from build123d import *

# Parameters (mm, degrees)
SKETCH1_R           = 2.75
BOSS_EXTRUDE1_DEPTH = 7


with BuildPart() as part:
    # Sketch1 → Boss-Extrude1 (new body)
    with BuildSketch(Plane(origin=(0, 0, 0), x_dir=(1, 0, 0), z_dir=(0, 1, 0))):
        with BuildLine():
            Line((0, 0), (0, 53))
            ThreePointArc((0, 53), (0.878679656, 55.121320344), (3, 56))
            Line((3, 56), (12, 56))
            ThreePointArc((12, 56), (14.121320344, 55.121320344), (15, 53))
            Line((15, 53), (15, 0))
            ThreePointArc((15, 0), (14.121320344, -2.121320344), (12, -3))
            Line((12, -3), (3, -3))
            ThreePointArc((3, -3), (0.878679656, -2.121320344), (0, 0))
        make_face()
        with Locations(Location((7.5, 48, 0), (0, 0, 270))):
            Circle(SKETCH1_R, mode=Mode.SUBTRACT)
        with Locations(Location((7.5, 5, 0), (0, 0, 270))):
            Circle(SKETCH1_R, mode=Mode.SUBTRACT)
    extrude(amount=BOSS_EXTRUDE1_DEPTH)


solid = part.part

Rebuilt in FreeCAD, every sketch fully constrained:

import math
import FreeCAD as App
import Part
import Sketcher
from FreeCAD import Vector

doc = App.newDocument("Part")
body = doc.addObject("PartDesign::Body", "Body")

# Sketch on XZ plane
sketch1 = body.newObject("Sketcher::SketchObject", "Sketch")
sketch1.AttachmentSupport = (doc.getObject("XZ_Plane"), [""])
sketch1.MapMode = "FlatFace"
sketch1.addGeometry([
    Part.LineSegment(Vector(0, -53, 0), Vector(0, 0, 0)),  # 0
    Part.ArcOfCircle(Part.Circle(Vector(3, 0, 0), Vector(0, 0, 1), 3), math.radians(90), math.radians(180)),  # 1
    Part.LineSegment(Vector(3, 3, 0), Vector(12, 3, 0)),  # 2
    Part.ArcOfCircle(Part.Circle(Vector(12, 0, 0), Vector(0, 0, 1), 3), math.radians(0), math.radians(90)),  # 3
    Part.LineSegment(Vector(15, 0, 0), Vector(15, -53, 0)),  # 4
    Part.ArcOfCircle(Part.Circle(Vector(12, -53, 0), Vector(0, 0, 1), 3), math.radians(-90), math.radians(0)),  # 5
    Part.LineSegment(Vector(12, -56, 0), Vector(3, -56, 0)),  # 6
    Part.ArcOfCircle(Part.Circle(Vector(3, -53, 0), Vector(0, 0, 1), 3), math.radians(180), math.radians(270)),  # 7
    Part.Circle(Vector(7.5, -5, 0), Vector(0, 0, 1), 2.75),  # 8
    Part.Circle(Vector(7.5, -48, 0), Vector(0, 0, 1), 2.75),  # 9
], False)
sketch1.addConstraint([
    Sketcher.Constraint("Tangent", 0, 2, 1, 2),
    Sketcher.Constraint("Tangent", 1, 1, 2, 1),
    Sketcher.Constraint("Tangent", 2, 2, 3, 2),
    Sketcher.Constraint("Tangent", 3, 1, 4, 1),
    Sketcher.Constraint("Tangent", 4, 2, 5, 2),
    Sketcher.Constraint("Tangent", 5, 1, 6, 1),
    Sketcher.Constraint("Tangent", 6, 2, 7, 2),
    Sketcher.Constraint("Tangent", 7, 1, 0, 1),
    Sketcher.Constraint("Vertical", 0),
    Sketcher.Constraint("Horizontal", 2),
    Sketcher.Constraint("Vertical", 4),
    Sketcher.Constraint("Horizontal", 6),
    Sketcher.Constraint("Coincident", 0, 2, -1, 1),
    Sketcher.Constraint("Equal", 1, 3),
    Sketcher.Constraint("Equal", 3, 5),
    Sketcher.Constraint("Equal", 5, 7),
    Sketcher.Constraint("Equal", 8, 9),
    Sketcher.Constraint("Vertical", 8, 3, 9, 3),
    Sketcher.Constraint("Radius", 1, 3.0),
    Sketcher.Constraint("Diameter", 8, 5.5),
    Sketcher.Constraint("DistanceX", 2, 1, 2, 2, 9.0),
    Sketcher.Constraint("DistanceY", 0, 1, 0, 2, 53.0),
    Sketcher.Constraint("DistanceY", 8, 3, -1, 1, 5.0),
    Sketcher.Constraint("DistanceY", 9, 3, -1, 1, 48.0),
    Sketcher.Constraint("DistanceX", -1, 1, 8, 3, 7.5),
])
pad1 = body.newObject("PartDesign::Pad", "Pad")
pad1.Profile = sketch1
pad1.Length = 7
pad1.Reversed = True

doc.recompute()
